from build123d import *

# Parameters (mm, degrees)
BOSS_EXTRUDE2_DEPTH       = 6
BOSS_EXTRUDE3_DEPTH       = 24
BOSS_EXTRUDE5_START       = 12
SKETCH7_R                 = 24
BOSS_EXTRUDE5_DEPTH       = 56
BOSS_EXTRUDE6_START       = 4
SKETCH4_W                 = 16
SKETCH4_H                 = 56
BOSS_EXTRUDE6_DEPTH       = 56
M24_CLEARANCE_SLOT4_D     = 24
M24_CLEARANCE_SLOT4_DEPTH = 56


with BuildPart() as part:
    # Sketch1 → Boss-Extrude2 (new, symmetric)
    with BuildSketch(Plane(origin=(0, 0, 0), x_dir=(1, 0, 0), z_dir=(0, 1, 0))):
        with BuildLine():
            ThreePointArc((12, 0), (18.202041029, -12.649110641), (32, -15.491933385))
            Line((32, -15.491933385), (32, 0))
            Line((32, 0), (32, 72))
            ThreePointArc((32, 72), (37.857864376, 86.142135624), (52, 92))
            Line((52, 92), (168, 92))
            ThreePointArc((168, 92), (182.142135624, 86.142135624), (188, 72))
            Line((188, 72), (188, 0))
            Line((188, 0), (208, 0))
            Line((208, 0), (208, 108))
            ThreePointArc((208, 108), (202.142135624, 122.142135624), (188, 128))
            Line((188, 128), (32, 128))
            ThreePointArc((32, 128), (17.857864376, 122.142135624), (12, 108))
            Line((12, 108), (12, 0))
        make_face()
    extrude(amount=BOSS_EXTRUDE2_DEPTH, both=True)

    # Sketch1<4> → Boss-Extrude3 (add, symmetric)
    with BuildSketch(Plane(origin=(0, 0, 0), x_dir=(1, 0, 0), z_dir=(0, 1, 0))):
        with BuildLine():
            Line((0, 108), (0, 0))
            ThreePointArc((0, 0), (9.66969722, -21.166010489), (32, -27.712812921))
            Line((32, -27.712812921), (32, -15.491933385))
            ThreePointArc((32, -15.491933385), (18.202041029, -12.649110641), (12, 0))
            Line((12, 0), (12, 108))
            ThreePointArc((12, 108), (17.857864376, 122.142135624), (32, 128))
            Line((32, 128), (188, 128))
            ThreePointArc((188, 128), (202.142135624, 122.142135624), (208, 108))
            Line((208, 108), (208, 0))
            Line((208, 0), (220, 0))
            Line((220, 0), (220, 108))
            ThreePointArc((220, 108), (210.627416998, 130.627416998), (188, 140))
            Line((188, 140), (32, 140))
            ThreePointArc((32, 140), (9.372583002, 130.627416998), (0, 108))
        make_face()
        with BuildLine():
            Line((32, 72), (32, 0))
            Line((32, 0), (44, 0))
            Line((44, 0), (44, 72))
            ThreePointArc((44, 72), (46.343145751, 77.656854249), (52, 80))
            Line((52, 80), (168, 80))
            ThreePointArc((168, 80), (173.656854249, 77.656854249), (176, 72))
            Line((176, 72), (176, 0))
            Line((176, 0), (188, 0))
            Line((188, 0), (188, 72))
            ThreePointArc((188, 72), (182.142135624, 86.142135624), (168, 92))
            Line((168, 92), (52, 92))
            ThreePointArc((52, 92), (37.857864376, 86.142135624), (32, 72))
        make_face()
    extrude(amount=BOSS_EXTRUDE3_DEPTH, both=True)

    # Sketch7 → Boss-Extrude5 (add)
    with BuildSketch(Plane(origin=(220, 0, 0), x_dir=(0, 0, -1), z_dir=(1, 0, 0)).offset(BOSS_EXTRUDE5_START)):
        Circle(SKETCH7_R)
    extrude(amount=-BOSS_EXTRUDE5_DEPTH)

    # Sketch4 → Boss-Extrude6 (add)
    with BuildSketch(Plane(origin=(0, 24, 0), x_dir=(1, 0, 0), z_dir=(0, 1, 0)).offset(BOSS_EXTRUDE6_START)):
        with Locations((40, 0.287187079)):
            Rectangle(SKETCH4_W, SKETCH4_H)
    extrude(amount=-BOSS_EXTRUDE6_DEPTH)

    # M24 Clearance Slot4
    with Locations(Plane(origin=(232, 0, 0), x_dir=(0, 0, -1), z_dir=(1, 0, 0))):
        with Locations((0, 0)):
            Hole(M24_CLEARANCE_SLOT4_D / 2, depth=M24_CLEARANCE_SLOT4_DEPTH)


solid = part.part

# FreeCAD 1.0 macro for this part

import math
import FreeCAD as App
import Part
import Sketcher


def add_polygon(sketch, points):
    """Adds a closed chain of lines whose ends are joined by coincident constraints."""
    first, n = sketch.GeometryCount, len(points)
    for a, b in zip(points, points[1:] + points[:1]):
        sketch.addGeometry(Part.LineSegment(App.Vector(*a, 0), App.Vector(*b, 0)), False)
    for i in range(n):
        sketch.addConstraint(Sketcher.Constraint("Coincident", first + i, 2, first + (i + 1) % n, 1))

doc = App.newDocument("Part")
body = doc.addObject("PartDesign::Body", "Body")

# Sketch on XZ plane
sketch1 = body.newObject("Sketcher::SketchObject", "Sketch")
sketch1.AttachmentSupport = (doc.getObject("XZ_Plane"), [""])
sketch1.MapMode = "FlatFace"
sketch1.addGeometry([
    Part.ArcOfCircle(Part.Circle(App.Vector(28, 0, 0), App.Vector(0, 0, 1), 16), math.radians(76), math.radians(180)),  # 0
    Part.LineSegment(App.Vector(32, 15, 0), App.Vector(32, -72, 0)),  # 1
    Part.ArcOfCircle(Part.Circle(App.Vector(52, -72, 0), App.Vector(0, 0, 1), 20), math.radians(180), math.radians(270)),  # 2
    Part.LineSegment(App.Vector(52, -92, 0), App.Vector(168, -92, 0)),  # 3
    Part.ArcOfCircle(Part.Circle(App.Vector(168, -72, 0), App.Vector(0, 0, 1), 20), math.radians(-90), math.radians(0)),  # 4
    Part.LineSegment(App.Vector(188, -72, 0), App.Vector(188, 0, 0)),  # 5
    Part.LineSegment(App.Vector(188, 0, 0), App.Vector(208, 0, 0)),  # 6
    Part.LineSegment(App.Vector(208, 0, 0), App.Vector(208, -108, 0)),  # 7
    Part.ArcOfCircle(Part.Circle(App.Vector(188, -108, 0), App.Vector(0, 0, 1), 20), math.radians(-90), math.radians(0)),  # 8
    Part.LineSegment(App.Vector(188, -128, 0), App.Vector(32, -128, 0)),  # 9
    Part.ArcOfCircle(Part.Circle(App.Vector(32, -108, 0), App.Vector(0, 0, 1), 20), math.radians(180), math.radians(270)),  # 10
    Part.LineSegment(App.Vector(12, -108, 0), App.Vector(12, 0, 0)),  # 11
], False)
sketch1.addConstraint([
    Sketcher.Constraint("Coincident", 0, 1, 1, 1),
    Sketcher.Constraint("Tangent", 1, 2, 2, 1),
    Sketcher.Constraint("Tangent", 2, 2, 3, 1),
    Sketcher.Constraint("Tangent", 3, 2, 4, 1),
    Sketcher.Constraint("Tangent", 4, 2, 5, 1),
    Sketcher.Constraint("Coincident", 5, 2, 6, 1),
    Sketcher.Constraint("Coincident", 6, 2, 7, 1),
    Sketcher.Constraint("Tangent", 7, 2, 8, 2),
    Sketcher.Constraint("Tangent", 8, 1, 9, 1),
    Sketcher.Constraint("Tangent", 9, 2, 10, 2),
    Sketcher.Constraint("Tangent", 10, 1, 11, 1),
    Sketcher.Constraint("Tangent", 11, 2, 0, 2),
    Sketcher.Constraint("Vertical", 1),
    Sketcher.Constraint("Horizontal", 3),
    Sketcher.Constraint("Vertical", 5),
    Sketcher.Constraint("Horizontal", 6),
    Sketcher.Constraint("Vertical", 7),
    Sketcher.Constraint("Horizontal", 9),
    Sketcher.Constraint("Vertical", 11),
    Sketcher.Constraint("Equal", 2, 4),
    Sketcher.Constraint("Equal", 4, 8),
    Sketcher.Constraint("Equal", 8, 10),
    Sketcher.Constraint("PointOnObject", 0, 3, -1),
    Sketcher.Constraint("PointOnObject", 5, 2, -1),
    Sketcher.Constraint("Vertical", 10, 3, 0, 1),
    Sketcher.Constraint("Vertical", 8, 3, 4, 2),
    Sketcher.Constraint("Radius", 0, 16.0),
    Sketcher.Constraint("Radius", 2, 20.0),
    Sketcher.Constraint("DistanceX", 3, 1, 3, 2, 116.0),
    Sketcher.Constraint("DistanceY", 5, 1, 5, 2, 72.0),
    Sketcher.Constraint("DistanceY", 7, 2, 7, 1, 108.0),
    Sketcher.Constraint("DistanceX", -1, 1, 0, 3, 28.0),
])
pad1 = body.newObject("PartDesign::Pad", "Pad")
pad1.Profile = sketch1
pad1.Length = 12
pad1.Midplane = True

# Sketch on XZ plane
sketch2 = body.newObject("Sketcher::SketchObject", "Sketch001")
sketch2.AttachmentSupport = (doc.getObject("XZ_Plane"), [""])
sketch2.MapMode = "FlatFace"
sketch2.addGeometry([
    Part.LineSegment(App.Vector(0, -108, 0), App.Vector(0, 0, 0)),  # 0
    Part.ArcOfCircle(Part.Circle(App.Vector(28, 0, 0), App.Vector(0, 0, 1), 28), math.radians(82), math.radians(180)),  # 1
    Part.LineSegment(App.Vector(32, 28, 0), App.Vector(32, 15, 0)),  # 2
    Part.ArcOfCircle(Part.Circle(App.Vector(28, 0, 0), App.Vector(0, 0, 1), 16), math.radians(76), math.radians(180)),  # 3
    Part.LineSegment(App.Vector(12, 0, 0), App.Vector(12, -108, 0)),  # 4
    Part.ArcOfCircle(Part.Circle(App.Vector(32, -108, 0), App.Vector(0, 0, 1), 20), math.radians(180), math.radians(270)),  # 5
    Part.LineSegment(App.Vector(32, -128, 0), App.Vector(188, -128, 0)),  # 6
    Part.ArcOfCircle(Part.Circle(App.Vector(188, -108, 0), App.Vector(0, 0, 1), 20), math.radians(-90), math.radians(0)),  # 7
    Part.LineSegment(App.Vector(208, -108, 0), App.Vector(208, 0, 0)),  # 8
    Part.LineSegment(App.Vector(208, 0, 0), App.Vector(220, 0, 0)),  # 9
    Part.LineSegment(App.Vector(220, 0, 0), App.Vector(220, -108, 0)),  # 10
    Part.ArcOfCircle(Part.Circle(App.Vector(188, -108, 0), App.Vector(0, 0, 1), 32), math.radians(-90), math.radians(0)),  # 11
    Part.LineSegment(App.Vector(188, -140, 0), App.Vector(32, -140, 0)),  # 12
    Part.ArcOfCircle(Part.Circle(App.Vector(32, -108, 0), App.Vector(0, 0, 1), 32), math.radians(180), math.radians(270)),  # 13
    Part.LineSegment(App.Vector(32, -72, 0), App.Vector(32, 0, 0)),  # 14
    Part.LineSegment(App.Vector(32, 0, 0), App.Vector(44, 0, 0)),  # 15
    Part.LineSegment(App.Vector(44, 0, 0), App.Vector(44, -72, 0)),  # 16
    Part.ArcOfCircle(Part.Circle(App.Vector(52, -72, 0), App.Vector(0, 0, 1), 8), math.radians(-180), math.radians(-90)),  # 17
    Part.LineSegment(App.Vector(52, -80, 0), App.Vector(168, -80, 0)),  # 18
    Part.ArcOfCircle(Part.Circle(App.Vector(168, -72, 0), App.Vector(0, 0, 1), 8), math.radians(-90), math.radians(0)),  # 19
    Part.LineSegment(App.Vector(176, -72, 0), App.Vector(176, 0, 0)),  # 20
    Part.LineSegment(App.Vector(176, 0, 0), App.Vector(188, 0, 0)),  # 21
    Part.LineSegment(App.Vector(188, 0, 0), App.Vector(188, -72, 0)),  # 22
    Part.ArcOfCircle(Part.Circle(App.Vector(168, -72, 0), App.Vector(0, 0, 1), 20), math.radians(-90), math.radians(0)),  # 23
    Part.LineSegment(App.Vector(168, -92, 0), App.Vector(52, -92, 0)),  # 24
    Part.ArcOfCircle(Part.Circle(App.Vector(52, -72, 0), App.Vector(0, 0, 1), 20), math.radians(180), math.radians(270)),  # 25
], False)
sketch2.addConstraint([
    Sketcher.Constraint("Tangent", 0, 2, 1, 2),
    Sketcher.Constraint("Coincident", 1, 1, 2, 1),
    Sketcher.Constraint("Coincident", 2, 2, 3, 1),
    Sketcher.Constraint("Tangent", 3, 2, 4, 1),
    Sketcher.Constraint("Tangent", 4, 2, 5, 1),
    Sketcher.Constraint("Tangent", 5, 2, 6, 1),
    Sketcher.Constraint("Tangent", 6, 2, 7, 1),
    Sketcher.Constraint("Tangent", 7, 2, 8, 1),
    Sketcher.Constraint("Coincident", 8, 2, 9, 1),
    Sketcher.Constraint("Coincident", 9, 2, 10, 1),
    Sketcher.Constraint("Tangent", 10, 2, 11, 2),
    Sketcher.Constraint("Tangent", 11, 1, 12, 1),
    Sketcher.Constraint("Tangent", 12, 2, 13, 2),
    Sketcher.Constraint("Tangent", 13, 1, 0, 1),
    Sketcher.Constraint("Coincident", 14, 2, 15, 1),
    Sketcher.Constraint("Coincident", 15, 2, 16, 1),
    Sketcher.Constraint("Tangent", 16, 2, 17, 1),
    Sketcher.Constraint("Tangent", 17, 2, 18, 1),
    Sketcher.Constraint("Tangent", 18, 2, 19, 1),
    Sketcher.Constraint("Tangent", 19, 2, 20, 1),
    Sketcher.Constraint("Coincident", 20, 2, 21, 1),
    Sketcher.Constraint("Coincident", 21, 2, 22, 1),
    Sketcher.Constraint("Tangent", 22, 2, 23, 2),
    Sketcher.Constraint("Tangent", 23, 1, 24, 1),
    Sketcher.Constraint("Tangent", 24, 2, 25, 2),
    Sketcher.Constraint("Tangent", 25, 1, 14, 1),
    Sketcher.Constraint("Vertical", 0),
    Sketcher.Constraint("Vertical", 2),
    Sketcher.Constraint("Vertical", 4),
    Sketcher.Constraint("Horizontal", 6),
    Sketcher.Constraint("Vertical", 8),
    Sketcher.Constraint("Horizontal", 9),
    Sketcher.Constraint("Vertical", 10),
    Sketcher.Constraint("Horizontal", 12),
    Sketcher.Constraint("Vertical", 14),
    Sketcher.Constraint("Horizontal", 15),
    Sketcher.Constraint("Vertical", 16),
    Sketcher.Constraint("Horizontal", 18),
    Sketcher.Constraint("Vertical", 20),
    Sketcher.Constraint("Horizontal", 21),
    Sketcher.Constraint("Vertical", 22),
    Sketcher.Constraint("Horizontal", 24),
    Sketcher.Constraint("Coincident", 0, 2, -1, 1),
    Sketcher.Constraint("Coincident", 3, 3, 1, 3),
    Sketcher.Constraint("Coincident", 11, 3, 7, 3),
    Sketcher.Constraint("Coincident", 13, 3, 5, 3),
    Sketcher.Constraint("Coincident", 23, 3, 19, 3),
    Sketcher.Constraint("Coincident", 25, 3, 17, 3),
    Sketcher.Constraint("Equal", 5, 7),
    Sketcher.Constraint("Equal", 17, 19),
    Sketcher.Constraint("Equal", 7, 23),
    Sketcher.Constraint("PointOnObject", 8, 2, -1),
    Sketcher.Constraint("PointOnObject", 14, 2, -1),
    Sketcher.Constraint("PointOnObject", 20, 2, -1),
    Sketcher.Constraint("Vertical", 13, 3, 1, 1),
    Sketcher.Constraint("Vertical", 12, 2, 14, 2),
    Sketcher.Constraint("Vertical", 11, 1, 21, 2),
    Sketcher.Constraint("Equal", 9, 15),
    Sketcher.Constraint("Radius", 1, 28.0),
    Sketcher.Constraint("Radius", 3, 16.0),
    Sketcher.Constraint("Radius", 5, 20.0),
    Sketcher.Constraint("DistanceX", 6, 1, 6, 2, 156.0),
    Sketcher.Constraint("DistanceY", 0, 1, 0, 2, 108.0),
    Sketcher.Constraint("DistanceY", 14, 1, 14, 2, 72.0),
])
pad2 = body.newObject("PartDesign::Pad", "Pad001")
pad2.Profile = sketch2
pad2.Length = 48
pad2.Midplane = True

# Sketch on YZ plane
sketch3 = body.newObject("Sketcher::SketchObject", "Sketch002")
sketch3.AttachmentSupport = (doc.getObject("YZ_Plane"), [""])
sketch3.MapMode = "FlatFace"
sketch3.AttachmentOffset = App.Placement(App.Vector(0, 0, 232), App.Rotation())
sketch3.addGeometry(Part.Circle(App.Vector(0, 0, 0), App.Vector(0, 0, 1), 24), False)
sketch3.addConstraint([
    Sketcher.Constraint("Coincident", 0, 3, -1, 1),
    Sketcher.Constraint("Diameter", 0, 48.0),
])
pad3 = body.newObject("PartDesign::Pad", "Pad002")
pad3.Profile = sketch3
pad3.Length = 56
pad3.Reversed = True

# Sketch on XZ plane
sketch4 = body.newObject("Sketcher::SketchObject", "Sketch003")
sketch4.AttachmentSupport = (doc.getObject("XZ_Plane"), [""])
sketch4.MapMode = "FlatFace"
sketch4.AttachmentOffset = App.Placement(App.Vector(0, 0, -28), App.Rotation())
add_polygon(sketch4, [(32, -28), (32, 28), (48, 28), (48, -28)])  # lines 0-3
sketch4.addConstraint([
    Sketcher.Constraint("Vertical", 0),
    Sketcher.Constraint("Horizontal", 1),
    Sketcher.Constraint("Vertical", 2),
    Sketcher.Constraint("Horizontal", 3),
    Sketcher.Constraint("DistanceX", 1, 1, 1, 2, 16.0),
    Sketcher.Constraint("DistanceY", 0, 1, 0, 2, 56.0),
    Sketcher.Constraint("DistanceX", -1, 1, 0, 2, 32.0),
    Sketcher.Constraint("DistanceY", -1, 1, 0, 2, 27.712813),
])
pad4 = body.newObject("PartDesign::Pad", "Pad003")
pad4.Profile = sketch4
pad4.Length = 56

# Sketch on YZ plane
sketch5 = body.newObject("Sketcher::SketchObject", "Sketch004")
sketch5.AttachmentSupport = (doc.getObject("YZ_Plane"), [""])
sketch5.MapMode = "FlatFace"
sketch5.AttachmentOffset = App.Placement(App.Vector(0, 0, 232), App.Rotation())
sketch5.addGeometry(Part.Circle(App.Vector(0, 0, 0), App.Vector(0, 0, 1), 12), False)
sketch5.addConstraint([
    Sketcher.Constraint("Coincident", 0, 3, -1, 1),
    Sketcher.Constraint("Diameter", 0, 24.0),
])
doc.recompute()
hole = body.newObject("PartDesign::Hole", "Hole")
hole.Profile = sketch5
hole.ThreadType = "None"
hole.Diameter = 24
hole.DepthType = "Dimension"
hole.Depth = 56
hole.DrillPoint = "Flat"

doc.recompute()
